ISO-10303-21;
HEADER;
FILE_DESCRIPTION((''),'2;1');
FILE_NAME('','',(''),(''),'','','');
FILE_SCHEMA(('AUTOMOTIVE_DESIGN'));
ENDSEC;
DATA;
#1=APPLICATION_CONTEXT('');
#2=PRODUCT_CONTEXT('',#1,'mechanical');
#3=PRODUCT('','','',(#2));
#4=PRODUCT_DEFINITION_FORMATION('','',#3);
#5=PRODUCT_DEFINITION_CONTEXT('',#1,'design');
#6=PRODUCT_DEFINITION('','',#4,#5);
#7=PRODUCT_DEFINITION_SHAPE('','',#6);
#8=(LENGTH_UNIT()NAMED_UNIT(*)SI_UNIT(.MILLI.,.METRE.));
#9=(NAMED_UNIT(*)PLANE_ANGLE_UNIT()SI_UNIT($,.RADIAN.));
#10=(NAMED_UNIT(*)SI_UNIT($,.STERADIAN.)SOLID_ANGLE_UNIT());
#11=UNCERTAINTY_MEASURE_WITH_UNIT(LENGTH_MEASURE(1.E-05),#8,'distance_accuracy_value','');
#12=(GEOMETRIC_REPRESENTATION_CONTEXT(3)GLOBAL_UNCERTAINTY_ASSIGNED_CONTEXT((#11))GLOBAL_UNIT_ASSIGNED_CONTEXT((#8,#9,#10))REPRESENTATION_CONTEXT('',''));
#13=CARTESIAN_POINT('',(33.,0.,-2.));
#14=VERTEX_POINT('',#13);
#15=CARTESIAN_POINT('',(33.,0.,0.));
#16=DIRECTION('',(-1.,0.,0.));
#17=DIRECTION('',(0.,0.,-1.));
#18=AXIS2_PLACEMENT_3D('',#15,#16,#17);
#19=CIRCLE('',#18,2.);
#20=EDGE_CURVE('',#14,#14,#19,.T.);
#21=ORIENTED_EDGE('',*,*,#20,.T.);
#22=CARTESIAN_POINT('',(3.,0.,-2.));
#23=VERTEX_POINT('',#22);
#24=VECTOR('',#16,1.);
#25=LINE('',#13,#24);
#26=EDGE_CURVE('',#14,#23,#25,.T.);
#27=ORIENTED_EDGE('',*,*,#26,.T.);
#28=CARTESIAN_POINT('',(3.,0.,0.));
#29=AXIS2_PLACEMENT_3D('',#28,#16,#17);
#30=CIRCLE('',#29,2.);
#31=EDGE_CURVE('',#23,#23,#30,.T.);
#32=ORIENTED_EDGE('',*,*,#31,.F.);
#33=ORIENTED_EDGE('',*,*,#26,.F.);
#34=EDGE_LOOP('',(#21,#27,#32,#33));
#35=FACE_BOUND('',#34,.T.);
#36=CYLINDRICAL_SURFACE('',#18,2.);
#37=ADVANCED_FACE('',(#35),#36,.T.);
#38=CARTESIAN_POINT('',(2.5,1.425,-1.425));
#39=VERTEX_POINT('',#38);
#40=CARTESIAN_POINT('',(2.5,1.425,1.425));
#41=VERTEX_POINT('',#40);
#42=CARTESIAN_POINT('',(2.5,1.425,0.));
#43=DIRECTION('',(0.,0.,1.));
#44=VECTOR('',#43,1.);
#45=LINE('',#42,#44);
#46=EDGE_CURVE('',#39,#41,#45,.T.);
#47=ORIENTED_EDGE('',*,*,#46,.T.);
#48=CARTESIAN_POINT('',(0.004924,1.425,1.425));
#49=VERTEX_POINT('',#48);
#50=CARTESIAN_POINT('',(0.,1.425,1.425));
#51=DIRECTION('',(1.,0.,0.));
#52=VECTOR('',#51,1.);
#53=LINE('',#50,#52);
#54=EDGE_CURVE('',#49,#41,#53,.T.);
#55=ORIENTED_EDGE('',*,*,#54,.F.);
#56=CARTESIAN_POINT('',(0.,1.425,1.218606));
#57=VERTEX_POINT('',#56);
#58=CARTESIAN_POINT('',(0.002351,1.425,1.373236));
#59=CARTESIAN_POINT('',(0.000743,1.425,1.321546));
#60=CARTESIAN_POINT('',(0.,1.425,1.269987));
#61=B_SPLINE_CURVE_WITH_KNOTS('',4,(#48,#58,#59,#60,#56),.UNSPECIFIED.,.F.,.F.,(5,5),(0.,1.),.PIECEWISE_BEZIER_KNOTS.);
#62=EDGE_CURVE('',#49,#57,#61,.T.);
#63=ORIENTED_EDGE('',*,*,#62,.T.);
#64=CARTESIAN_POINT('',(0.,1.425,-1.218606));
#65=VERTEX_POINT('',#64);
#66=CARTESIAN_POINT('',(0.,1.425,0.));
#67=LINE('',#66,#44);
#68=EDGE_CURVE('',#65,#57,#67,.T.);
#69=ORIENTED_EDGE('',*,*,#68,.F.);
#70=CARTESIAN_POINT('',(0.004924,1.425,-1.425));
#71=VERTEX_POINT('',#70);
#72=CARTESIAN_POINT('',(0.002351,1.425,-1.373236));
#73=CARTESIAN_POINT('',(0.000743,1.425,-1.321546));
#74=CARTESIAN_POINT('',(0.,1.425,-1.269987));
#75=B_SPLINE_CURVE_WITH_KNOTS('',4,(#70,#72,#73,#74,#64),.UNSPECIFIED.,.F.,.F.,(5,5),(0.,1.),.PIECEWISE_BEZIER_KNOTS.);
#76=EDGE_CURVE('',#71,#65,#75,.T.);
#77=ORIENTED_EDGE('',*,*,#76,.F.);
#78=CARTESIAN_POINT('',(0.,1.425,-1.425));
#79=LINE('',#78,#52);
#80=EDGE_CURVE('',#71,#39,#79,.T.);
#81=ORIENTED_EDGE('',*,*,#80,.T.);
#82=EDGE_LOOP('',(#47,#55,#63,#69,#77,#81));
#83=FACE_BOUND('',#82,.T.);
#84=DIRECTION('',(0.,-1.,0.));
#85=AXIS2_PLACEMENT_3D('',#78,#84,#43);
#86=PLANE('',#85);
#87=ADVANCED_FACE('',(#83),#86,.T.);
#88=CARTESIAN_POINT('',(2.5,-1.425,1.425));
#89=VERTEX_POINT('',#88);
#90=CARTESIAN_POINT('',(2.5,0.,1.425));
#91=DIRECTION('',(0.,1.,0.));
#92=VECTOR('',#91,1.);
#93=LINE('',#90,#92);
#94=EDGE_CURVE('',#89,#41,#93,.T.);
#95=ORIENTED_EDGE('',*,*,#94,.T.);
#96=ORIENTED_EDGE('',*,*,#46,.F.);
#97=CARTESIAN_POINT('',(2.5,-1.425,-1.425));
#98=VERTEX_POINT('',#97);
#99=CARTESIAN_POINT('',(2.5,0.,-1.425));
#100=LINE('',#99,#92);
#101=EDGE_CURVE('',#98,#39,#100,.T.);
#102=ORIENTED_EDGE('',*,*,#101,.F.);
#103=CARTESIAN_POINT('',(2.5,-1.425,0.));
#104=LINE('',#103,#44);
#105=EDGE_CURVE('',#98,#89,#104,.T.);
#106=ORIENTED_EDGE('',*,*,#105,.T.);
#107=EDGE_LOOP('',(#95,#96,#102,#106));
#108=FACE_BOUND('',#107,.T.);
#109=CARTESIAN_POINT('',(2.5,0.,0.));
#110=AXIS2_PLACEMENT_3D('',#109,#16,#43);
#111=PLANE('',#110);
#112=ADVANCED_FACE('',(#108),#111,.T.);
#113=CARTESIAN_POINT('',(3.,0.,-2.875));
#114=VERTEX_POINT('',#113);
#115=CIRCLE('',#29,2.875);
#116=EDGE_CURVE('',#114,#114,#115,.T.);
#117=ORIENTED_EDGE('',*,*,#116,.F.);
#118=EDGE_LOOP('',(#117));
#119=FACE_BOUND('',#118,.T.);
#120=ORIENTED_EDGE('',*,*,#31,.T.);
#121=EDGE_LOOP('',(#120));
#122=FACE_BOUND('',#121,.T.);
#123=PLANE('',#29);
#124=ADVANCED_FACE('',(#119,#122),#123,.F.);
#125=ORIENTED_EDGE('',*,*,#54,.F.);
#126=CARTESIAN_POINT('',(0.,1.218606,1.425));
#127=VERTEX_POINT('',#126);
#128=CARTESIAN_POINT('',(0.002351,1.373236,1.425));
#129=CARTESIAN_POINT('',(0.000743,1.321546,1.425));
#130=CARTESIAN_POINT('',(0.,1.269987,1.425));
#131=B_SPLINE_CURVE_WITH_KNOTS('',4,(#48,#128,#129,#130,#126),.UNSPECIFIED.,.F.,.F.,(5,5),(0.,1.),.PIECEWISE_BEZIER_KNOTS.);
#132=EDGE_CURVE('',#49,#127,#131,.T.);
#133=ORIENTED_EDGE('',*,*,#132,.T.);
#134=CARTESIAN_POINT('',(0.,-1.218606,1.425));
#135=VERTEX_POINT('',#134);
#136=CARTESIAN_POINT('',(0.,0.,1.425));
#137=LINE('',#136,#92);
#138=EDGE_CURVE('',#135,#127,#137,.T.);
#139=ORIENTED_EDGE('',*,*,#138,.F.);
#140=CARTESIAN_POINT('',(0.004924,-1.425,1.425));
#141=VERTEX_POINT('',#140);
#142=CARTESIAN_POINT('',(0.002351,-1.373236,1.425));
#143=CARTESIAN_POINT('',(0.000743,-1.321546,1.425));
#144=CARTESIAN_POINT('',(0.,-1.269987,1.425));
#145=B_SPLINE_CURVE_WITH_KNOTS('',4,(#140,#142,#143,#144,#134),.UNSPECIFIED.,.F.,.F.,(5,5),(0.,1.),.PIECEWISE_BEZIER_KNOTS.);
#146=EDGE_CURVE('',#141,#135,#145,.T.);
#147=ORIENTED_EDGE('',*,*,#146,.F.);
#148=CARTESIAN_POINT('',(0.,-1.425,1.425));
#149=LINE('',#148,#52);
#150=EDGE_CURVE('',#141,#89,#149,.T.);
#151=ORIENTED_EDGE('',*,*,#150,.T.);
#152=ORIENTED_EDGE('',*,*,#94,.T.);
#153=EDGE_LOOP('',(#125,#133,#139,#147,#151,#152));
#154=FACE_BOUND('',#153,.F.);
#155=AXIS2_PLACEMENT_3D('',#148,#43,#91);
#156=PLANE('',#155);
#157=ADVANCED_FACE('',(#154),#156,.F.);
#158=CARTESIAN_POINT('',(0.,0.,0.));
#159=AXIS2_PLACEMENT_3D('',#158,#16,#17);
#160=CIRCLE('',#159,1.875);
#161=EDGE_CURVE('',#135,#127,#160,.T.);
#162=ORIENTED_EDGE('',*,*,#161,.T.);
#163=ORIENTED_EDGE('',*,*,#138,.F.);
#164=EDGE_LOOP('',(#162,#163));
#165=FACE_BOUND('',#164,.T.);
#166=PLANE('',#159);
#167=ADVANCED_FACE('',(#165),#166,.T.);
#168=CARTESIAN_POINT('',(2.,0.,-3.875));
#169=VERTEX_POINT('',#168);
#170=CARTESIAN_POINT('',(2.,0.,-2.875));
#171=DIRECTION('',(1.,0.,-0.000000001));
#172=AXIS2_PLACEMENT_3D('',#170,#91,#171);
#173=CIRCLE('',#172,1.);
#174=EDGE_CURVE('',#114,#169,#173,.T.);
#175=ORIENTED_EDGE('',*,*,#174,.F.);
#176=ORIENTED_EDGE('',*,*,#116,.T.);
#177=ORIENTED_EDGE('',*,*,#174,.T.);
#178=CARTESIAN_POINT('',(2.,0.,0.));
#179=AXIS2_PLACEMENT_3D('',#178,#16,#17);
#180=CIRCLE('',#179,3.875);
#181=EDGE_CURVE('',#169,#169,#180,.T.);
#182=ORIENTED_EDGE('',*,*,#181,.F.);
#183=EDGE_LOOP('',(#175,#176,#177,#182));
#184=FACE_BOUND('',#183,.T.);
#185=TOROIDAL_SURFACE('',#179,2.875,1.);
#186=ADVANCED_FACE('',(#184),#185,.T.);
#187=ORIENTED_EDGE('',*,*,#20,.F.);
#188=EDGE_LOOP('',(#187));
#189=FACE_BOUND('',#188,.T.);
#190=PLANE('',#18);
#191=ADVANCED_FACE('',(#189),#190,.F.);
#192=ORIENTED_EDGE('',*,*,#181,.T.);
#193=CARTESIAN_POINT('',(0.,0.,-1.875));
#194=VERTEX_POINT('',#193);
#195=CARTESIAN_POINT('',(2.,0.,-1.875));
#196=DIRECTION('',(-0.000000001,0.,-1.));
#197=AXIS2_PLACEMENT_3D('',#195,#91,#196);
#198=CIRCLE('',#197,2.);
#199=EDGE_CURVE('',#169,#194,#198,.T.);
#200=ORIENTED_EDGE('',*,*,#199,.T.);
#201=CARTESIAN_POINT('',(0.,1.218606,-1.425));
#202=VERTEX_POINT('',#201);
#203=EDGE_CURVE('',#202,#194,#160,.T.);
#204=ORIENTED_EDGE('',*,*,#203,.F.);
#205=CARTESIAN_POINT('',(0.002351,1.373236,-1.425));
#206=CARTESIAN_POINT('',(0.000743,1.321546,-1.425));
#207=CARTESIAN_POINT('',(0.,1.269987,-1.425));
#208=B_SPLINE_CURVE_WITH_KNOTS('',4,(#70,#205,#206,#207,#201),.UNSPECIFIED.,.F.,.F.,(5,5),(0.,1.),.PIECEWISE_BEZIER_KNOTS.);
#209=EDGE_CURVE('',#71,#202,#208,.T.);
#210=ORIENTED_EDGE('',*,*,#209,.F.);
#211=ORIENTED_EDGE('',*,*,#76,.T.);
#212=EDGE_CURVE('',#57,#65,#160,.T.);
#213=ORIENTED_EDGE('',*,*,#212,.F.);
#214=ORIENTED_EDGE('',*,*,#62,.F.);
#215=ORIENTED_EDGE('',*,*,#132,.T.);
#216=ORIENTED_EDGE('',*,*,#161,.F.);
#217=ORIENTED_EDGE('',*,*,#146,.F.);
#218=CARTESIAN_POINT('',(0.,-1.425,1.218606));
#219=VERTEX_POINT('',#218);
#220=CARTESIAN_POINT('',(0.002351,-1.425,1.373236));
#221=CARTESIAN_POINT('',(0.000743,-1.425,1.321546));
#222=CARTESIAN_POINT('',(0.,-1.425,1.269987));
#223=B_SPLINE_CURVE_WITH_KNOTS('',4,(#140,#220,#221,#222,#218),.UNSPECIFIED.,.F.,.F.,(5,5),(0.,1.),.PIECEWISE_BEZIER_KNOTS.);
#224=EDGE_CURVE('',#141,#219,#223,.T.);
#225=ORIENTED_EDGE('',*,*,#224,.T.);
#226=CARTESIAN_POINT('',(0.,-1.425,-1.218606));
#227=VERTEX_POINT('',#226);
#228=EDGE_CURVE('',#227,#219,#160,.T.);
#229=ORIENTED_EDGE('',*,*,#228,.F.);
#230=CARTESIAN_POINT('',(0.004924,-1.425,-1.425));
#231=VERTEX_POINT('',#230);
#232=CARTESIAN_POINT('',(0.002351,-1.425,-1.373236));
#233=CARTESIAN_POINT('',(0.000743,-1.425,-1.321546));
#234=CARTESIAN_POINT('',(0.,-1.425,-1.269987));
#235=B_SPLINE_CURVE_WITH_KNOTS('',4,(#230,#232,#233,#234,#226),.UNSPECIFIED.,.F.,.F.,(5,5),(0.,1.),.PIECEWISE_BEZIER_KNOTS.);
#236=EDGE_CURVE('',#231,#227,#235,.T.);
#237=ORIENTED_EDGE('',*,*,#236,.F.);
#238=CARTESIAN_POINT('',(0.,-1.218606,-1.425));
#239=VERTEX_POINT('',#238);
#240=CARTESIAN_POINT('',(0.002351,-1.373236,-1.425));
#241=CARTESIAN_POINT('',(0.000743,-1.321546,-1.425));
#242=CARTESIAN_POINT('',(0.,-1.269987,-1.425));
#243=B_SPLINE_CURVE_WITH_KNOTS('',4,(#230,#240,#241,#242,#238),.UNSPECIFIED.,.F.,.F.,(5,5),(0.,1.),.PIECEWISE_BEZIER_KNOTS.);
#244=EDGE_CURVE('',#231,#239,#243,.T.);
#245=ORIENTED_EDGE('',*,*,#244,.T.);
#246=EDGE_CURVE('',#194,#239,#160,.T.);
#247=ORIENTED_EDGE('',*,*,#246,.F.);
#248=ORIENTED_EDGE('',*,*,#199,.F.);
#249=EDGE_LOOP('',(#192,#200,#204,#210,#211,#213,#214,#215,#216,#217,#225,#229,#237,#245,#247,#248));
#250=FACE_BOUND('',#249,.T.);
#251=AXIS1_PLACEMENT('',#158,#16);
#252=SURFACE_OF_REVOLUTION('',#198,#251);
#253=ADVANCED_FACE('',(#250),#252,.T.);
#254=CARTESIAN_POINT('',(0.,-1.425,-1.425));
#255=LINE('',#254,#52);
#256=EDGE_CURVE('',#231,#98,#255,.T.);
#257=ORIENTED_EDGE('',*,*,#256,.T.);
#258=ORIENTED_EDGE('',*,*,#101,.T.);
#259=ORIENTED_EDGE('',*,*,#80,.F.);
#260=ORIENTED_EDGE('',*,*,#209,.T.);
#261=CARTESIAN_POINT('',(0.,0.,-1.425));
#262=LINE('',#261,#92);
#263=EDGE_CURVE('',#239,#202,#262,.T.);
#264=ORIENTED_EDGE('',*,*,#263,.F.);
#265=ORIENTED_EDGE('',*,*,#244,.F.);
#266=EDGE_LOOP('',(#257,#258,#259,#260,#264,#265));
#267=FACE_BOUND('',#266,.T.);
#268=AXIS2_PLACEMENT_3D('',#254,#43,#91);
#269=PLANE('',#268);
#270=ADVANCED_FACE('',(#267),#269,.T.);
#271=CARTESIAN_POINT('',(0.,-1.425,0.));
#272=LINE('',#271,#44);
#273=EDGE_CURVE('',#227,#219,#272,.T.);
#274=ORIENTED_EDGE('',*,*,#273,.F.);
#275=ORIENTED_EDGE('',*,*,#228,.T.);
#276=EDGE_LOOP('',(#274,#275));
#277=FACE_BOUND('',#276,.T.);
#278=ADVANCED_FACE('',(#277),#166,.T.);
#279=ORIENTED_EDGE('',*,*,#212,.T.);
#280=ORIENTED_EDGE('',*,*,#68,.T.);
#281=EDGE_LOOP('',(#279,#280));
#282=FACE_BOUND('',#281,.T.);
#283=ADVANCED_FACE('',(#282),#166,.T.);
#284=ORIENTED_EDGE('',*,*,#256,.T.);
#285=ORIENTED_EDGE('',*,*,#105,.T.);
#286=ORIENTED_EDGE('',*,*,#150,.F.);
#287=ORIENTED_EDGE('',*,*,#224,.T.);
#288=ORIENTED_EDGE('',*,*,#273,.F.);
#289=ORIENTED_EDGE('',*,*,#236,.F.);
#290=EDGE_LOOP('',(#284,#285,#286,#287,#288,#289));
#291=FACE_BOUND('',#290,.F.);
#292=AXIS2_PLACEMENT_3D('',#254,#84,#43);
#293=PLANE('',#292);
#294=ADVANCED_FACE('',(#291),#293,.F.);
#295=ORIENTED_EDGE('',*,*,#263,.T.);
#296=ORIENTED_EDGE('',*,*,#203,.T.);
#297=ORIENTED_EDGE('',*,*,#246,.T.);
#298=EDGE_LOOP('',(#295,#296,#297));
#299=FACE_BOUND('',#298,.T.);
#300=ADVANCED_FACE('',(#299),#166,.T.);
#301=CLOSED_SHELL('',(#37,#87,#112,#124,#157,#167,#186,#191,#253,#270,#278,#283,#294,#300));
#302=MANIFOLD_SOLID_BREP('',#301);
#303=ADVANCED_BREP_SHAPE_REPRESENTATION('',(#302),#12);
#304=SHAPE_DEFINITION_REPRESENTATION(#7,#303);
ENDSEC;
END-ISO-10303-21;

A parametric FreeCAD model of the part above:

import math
import FreeCAD as App
import Part
import Sketcher
from FreeCAD import Vector


def add_polygon(sketch, points):
    """Adds a closed chain of lines whose ends are joined by coincident constraints."""
    first, n = sketch.GeometryCount, len(points)
    for a, b in zip(points, points[1:] + points[:1]):
        sketch.addGeometry(Part.LineSegment(App.Vector(*a, 0), App.Vector(*b, 0)), False)
    for i in range(n):
        sketch.addConstraint(Sketcher.Constraint("Coincident", first + i, 2, first + (i + 1) % n, 1))

doc = App.newDocument("Part")
body = doc.addObject("PartDesign::Body", "Body")

# Sketch on XY plane
sketch1 = doc.addObject("Sketcher::SketchObject", "Sketch")
body.addObject(sketch1)
sketch1.AttachmentSupport = (doc.XY_Plane, [""])
sketch1.MapMode = "FlatFace"
sketch1.addGeometry(Part.LineSegment(Vector(0, 0, 0), Vector(33, 0, 0)), False)
sketch1.addGeometry(Part.LineSegment(Vector(33, 0, 0), Vector(33, 2, 0)), False)
sketch1.addGeometry(Part.LineSegment(Vector(33, 2, 0), Vector(3, 2, 0)), False)
sketch1.addGeometry(Part.LineSegment(Vector(3, 2, 0), Vector(3, 2.9, 0)), False)
sketch1.addGeometry(Part.ArcOfCircle(Part.Circle(Vector(2, 2.9, 0), Vector(0, 0, 1), 1), math.radians(0), math.radians(90)), False)
sketch1.addGeometry(Part.ArcOfCircle(Part.Circle(Vector(2, 1.9, 0), Vector(0, 0, 1), 2), math.radians(90), math.radians(180)), False)
sketch1.addGeometry(Part.LineSegment(Vector(0, 1.9, 0), Vector(0, 0, 0)), False)
sketch1.addConstraint(Sketcher.Constraint("Coincident", 0, 2, 1, 1))
sketch1.addConstraint(Sketcher.Constraint("Coincident", 1, 2, 2, 1))
sketch1.addConstraint(Sketcher.Constraint("Coincident", 2, 2, 3, 1))
sketch1.addConstraint(Sketcher.Constraint("Tangent", 3, 2, 4, 1))
sketch1.addConstraint(Sketcher.Constraint("Tangent", 4, 2, 5, 1))
sketch1.addConstraint(Sketcher.Constraint("Tangent", 5, 2, 6, 1))
sketch1.addConstraint(Sketcher.Constraint("Coincident", 6, 2, 0, 1))
sketch1.addConstraint(Sketcher.Constraint("Horizontal", 0))
sketch1.addConstraint(Sketcher.Constraint("Vertical", 1))
sketch1.addConstraint(Sketcher.Constraint("Horizontal", 2))
sketch1.addConstraint(Sketcher.Constraint("Vertical", 3))
sketch1.addConstraint(Sketcher.Constraint("Vertical", 6))
sketch1.addConstraint(Sketcher.Constraint("Coincident", 6, 2, -1, 1))
sketch1.addConstraint(Sketcher.Constraint("Vertical", 4, 3, 5, 3))
sketch1.addConstraint(Sketcher.Constraint("Radius", 4, 1.0))
sketch1.addConstraint(Sketcher.Constraint("Radius", 5, 2.0))
sketch1.addConstraint(Sketcher.Constraint("DistanceX", 0, 1, 0, 2, 33.0))
sketch1.addConstraint(Sketcher.Constraint("DistanceY", 1, 1, 1, 2, 2.0))
sketch1.addConstraint(Sketcher.Constraint("DistanceY", 3, 1, 3, 2, 0.875))
revolution = doc.addObject("PartDesign::Revolution", "Revolution")
body.addObject(revolution)
revolution.Profile = sketch1
revolution.ReferenceAxis = (sketch1, ["H_Axis"])
revolution.Angle = 360

# Sketch on YZ plane
sketch2 = doc.addObject("Sketcher::SketchObject", "Sketch001")
body.addObject(sketch2)
sketch2.AttachmentSupport = (doc.YZ_Plane, [""])
sketch2.MapMode = "FlatFace"
add_polygon(sketch2, [(1.4, -1.4), (-1.4, -1.4), (-1.4, 1.4), (1.4, 1.4)])  # lines 0-3
sketch2.addConstraint(Sketcher.Constraint("Horizontal", 0))
sketch2.addConstraint(Sketcher.Constraint("Vertical", 1))
sketch2.addConstraint(Sketcher.Constraint("Horizontal", 2))
sketch2.addConstraint(Sketcher.Constraint("Vertical", 3))
sketch2.addConstraint(Sketcher.Constraint("Symmetric", 0, 2, 2, 2, -1, 1))
sketch2.addConstraint(Sketcher.Constraint("Equal", 2, 1))
sketch2.addConstraint(Sketcher.Constraint("DistanceX", 0, 2, 0, 1, 2.85))
pocket1 = doc.addObject("PartDesign::Pocket", "Pocket")
body.addObject(pocket1)
pocket1.Profile = sketch2
pocket1.Length = 2.5
pocket1.Reversed = True

doc.recompute()
